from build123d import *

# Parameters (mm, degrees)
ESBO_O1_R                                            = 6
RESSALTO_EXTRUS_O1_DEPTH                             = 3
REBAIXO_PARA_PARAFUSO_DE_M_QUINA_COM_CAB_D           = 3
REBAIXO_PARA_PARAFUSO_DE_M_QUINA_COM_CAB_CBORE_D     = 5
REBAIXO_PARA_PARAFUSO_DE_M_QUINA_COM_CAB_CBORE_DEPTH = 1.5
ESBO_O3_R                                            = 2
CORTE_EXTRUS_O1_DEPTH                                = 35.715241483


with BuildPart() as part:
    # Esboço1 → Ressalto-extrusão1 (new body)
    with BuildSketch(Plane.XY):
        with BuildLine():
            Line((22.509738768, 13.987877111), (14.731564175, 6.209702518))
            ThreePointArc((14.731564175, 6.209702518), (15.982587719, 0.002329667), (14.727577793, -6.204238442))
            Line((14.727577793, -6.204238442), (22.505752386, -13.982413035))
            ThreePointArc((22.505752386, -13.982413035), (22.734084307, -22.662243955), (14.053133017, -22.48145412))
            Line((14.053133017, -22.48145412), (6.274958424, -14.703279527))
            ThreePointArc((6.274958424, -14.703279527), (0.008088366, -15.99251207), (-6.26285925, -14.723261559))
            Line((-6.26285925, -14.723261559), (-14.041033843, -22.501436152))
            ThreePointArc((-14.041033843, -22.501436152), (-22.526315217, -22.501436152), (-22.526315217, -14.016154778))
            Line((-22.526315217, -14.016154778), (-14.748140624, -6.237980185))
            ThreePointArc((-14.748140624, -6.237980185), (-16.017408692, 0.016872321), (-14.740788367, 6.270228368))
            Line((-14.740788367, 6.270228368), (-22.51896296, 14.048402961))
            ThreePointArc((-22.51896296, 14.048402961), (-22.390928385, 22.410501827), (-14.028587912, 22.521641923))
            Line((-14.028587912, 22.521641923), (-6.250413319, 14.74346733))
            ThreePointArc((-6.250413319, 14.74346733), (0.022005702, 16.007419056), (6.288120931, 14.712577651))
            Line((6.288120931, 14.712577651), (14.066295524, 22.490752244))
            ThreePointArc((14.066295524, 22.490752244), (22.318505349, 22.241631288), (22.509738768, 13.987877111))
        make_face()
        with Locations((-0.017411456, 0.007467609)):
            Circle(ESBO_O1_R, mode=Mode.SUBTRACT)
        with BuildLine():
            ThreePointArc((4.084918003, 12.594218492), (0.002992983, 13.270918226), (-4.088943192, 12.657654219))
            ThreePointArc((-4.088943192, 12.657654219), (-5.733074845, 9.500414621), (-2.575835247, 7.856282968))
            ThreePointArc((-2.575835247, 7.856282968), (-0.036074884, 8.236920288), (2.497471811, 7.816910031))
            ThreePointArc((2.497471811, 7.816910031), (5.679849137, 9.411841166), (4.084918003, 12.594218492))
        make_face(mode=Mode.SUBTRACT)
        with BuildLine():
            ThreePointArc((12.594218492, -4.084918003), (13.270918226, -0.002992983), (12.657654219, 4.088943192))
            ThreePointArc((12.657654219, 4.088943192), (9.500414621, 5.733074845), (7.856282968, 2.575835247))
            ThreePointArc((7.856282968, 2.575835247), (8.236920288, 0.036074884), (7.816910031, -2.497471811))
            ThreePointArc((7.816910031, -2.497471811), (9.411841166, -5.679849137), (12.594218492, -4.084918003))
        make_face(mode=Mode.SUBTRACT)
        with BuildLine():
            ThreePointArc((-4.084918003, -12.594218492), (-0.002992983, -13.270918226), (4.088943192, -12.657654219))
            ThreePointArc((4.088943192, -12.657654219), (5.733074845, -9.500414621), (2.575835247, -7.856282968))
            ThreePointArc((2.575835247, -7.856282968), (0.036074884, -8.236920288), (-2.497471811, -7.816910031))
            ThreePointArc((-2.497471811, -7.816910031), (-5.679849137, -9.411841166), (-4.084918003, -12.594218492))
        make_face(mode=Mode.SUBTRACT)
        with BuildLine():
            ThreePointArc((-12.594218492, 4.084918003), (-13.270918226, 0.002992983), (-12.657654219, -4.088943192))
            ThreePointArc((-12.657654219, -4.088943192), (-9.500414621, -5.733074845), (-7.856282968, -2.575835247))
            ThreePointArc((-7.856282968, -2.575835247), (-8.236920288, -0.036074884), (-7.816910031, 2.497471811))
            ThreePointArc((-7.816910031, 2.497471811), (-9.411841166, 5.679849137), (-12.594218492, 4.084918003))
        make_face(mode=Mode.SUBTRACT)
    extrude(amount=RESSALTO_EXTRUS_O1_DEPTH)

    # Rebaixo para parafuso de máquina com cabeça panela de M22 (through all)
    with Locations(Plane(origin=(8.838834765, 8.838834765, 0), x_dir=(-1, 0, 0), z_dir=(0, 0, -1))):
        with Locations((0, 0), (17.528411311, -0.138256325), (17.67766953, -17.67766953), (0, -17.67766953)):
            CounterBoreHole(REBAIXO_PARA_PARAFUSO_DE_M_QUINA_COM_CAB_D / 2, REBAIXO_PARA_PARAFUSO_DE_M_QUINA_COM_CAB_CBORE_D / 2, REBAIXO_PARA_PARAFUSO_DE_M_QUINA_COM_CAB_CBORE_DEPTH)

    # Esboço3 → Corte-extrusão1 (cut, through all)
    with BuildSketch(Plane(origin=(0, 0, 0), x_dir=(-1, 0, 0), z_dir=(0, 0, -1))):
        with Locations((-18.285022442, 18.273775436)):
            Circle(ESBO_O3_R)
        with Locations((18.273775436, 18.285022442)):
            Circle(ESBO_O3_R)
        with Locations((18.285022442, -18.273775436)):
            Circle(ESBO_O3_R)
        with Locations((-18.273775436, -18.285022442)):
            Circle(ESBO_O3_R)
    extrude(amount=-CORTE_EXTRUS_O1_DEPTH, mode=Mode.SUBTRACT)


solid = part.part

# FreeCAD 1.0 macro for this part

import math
import FreeCAD as App
import Part
import Sketcher

V = App.Vector
Q = App.Units.Quantity

doc = App.newDocument("Part")
body = doc.addObject("PartDesign::Body", "Body")

sketch1 = doc.addObject("Sketcher::SketchObject", "Sketch")
body.addObject(sketch1)
sketch1.AttachmentSupport = (doc.XY_Plane, [""])
sketch1.MapMode = "FlatFace"
sketch1.addGeometry([
    Part.LineSegment(V(14.7, 6.2, 0), V(22.5, 14, 0)),
    Part.ArcOfCircle(Part.Circle(V(18.1, 18, 0), V(0, 0, 1), 6), math.radians(-42), math.radians(132)),
    Part.LineSegment(V(14.1, 22.5, 0), V(6.3, 14.7, 0)),
    Part.ArcOfCircle(Part.Circle(V(0, 0, 0), V(0, 0, 1), 16), math.radians(67), math.radians(113)),
    Part.LineSegment(V(-6.3, 14.7, 0), V(-14, 22.5, 0)),
    Part.ArcOfCircle(Part.Circle(V(-18.2, 18.2, 0), V(0, 0, 1), 6), math.radians(47), math.radians(223)),
    Part.LineSegment(V(-22.5, 14, 0), V(-14.7, 6.3, 0)),
    Part.ArcOfCircle(Part.Circle(V(0, 0, 0), V(0, 0, 1), 16), math.radians(157), math.radians(203)),
    Part.LineSegment(V(-14.7, -6.2, 0), V(-22.5, -14, 0)),
    Part.ArcOfCircle(Part.Circle(V(-18.3, -18.3, 0), V(0, 0, 1), 6), math.radians(135), math.radians(315)),
    Part.LineSegment(V(-14, -22.5, 0), V(-6.3, -14.7, 0)),
    Part.ArcOfCircle(Part.Circle(V(0, 0, 0), V(0, 0, 1), 16), math.radians(-113), math.radians(-67)),
    Part.LineSegment(V(6.3, -14.7, 0), V(14.1, -22.5, 0)),
    Part.ArcOfCircle(Part.Circle(V(18.5, -18.4, 0), V(0, 0, 1), 6), math.radians(-138), math.radians(48)),
    Part.LineSegment(V(22.5, -14, 0), V(14.7, -6.2, 0)),
    Part.ArcOfCircle(Part.Circle(V(0, 0, 0), V(0, 0, 1), 16), math.radians(-23), math.radians(23)),
    Part.ArcOfCircle(Part.Circle(V(-3.3, -10.2, 0), V(0, 0, 1), 2.5), math.radians(72), math.radians(252)),
    Part.ArcOfCircle(Part.Circle(V(0.1, 0, 0), V(0, 0, 1), 8.2), math.radians(-108), math.radians(-73)),
    Part.ArcOfCircle(Part.Circle(V(3.3, -10.3, 0), V(0, 0, 1), 2.5), math.radians(-73), math.radians(107)),
    Part.ArcOfCircle(Part.Circle(V(0.1, 0, 0), V(0, 0, 1), 13.3), math.radians(-108), math.radians(-73)),
    Part.ArcOfCircle(Part.Circle(V(-10.2, 3.3, 0), V(0, 0, 1), 2.5), math.radians(-18), math.radians(162)),
    Part.ArcOfCircle(Part.Circle(V(0, -0.1, 0), V(0, 0, 1), 8.2), math.radians(162), math.radians(197)),
    Part.ArcOfCircle(Part.Circle(V(-10.3, -3.3, 0), V(0, 0, 1), 2.5), math.radians(-163), math.radians(17)),
    Part.ArcOfCircle(Part.Circle(V(0, -0.1, 0), V(0, 0, 1), 13.3), math.radians(162), math.radians(197)),
    Part.ArcOfCircle(Part.Circle(V(10.2, -3.3, 0), V(0, 0, 1), 2.5), math.radians(162), math.radians(342)),
    Part.ArcOfCircle(Part.Circle(V(0, 0.1, 0), V(0, 0, 1), 8.2), math.radians(-18), math.radians(17)),
    Part.ArcOfCircle(Part.Circle(V(10.3, 3.3, 0), V(0, 0, 1), 2.5), math.radians(17), math.radians(197)),
    Part.ArcOfCircle(Part.Circle(V(0, 0.1, 0), V(0, 0, 1), 13.3), math.radians(-18), math.radians(17)),
    Part.Circle(V(0, 0, 0), V(0, 0, 1), 6),
    Part.ArcOfCircle(Part.Circle(V(3.3, 10.2, 0), V(0, 0, 1), 2.5), math.radians(-108), math.radians(72)),
    Part.ArcOfCircle(Part.Circle(V(-0.1, 0, 0), V(0, 0, 1), 8.2), math.radians(72), math.radians(107)),
    Part.ArcOfCircle(Part.Circle(V(-3.3, 10.3, 0), V(0, 0, 1), 2.5), math.radians(107), math.radians(287)),
    Part.ArcOfCircle(Part.Circle(V(-0.1, 0, 0), V(0, 0, 1), 13.3), math.radians(72), math.radians(107)),
], False)
sketch1.addConstraint([
    Sketcher.Constraint("Coincident", 0, 2, 1, 1),
    Sketcher.Constraint("Coincident", 1, 2, 2, 1),
    Sketcher.Constraint("Coincident", 2, 2, 3, 1),
    Sketcher.Constraint("Coincident", 3, 2, 4, 1),
    Sketcher.Constraint("Coincident", 4, 2, 5, 1),
    Sketcher.Constraint("Coincident", 5, 2, 6, 1),
    Sketcher.Constraint("Coincident", 6, 2, 7, 1),
    Sketcher.Constraint("Coincident", 7, 2, 8, 1),
    Sketcher.Constraint("Tangent", 8, 2, 9, 1),
    Sketcher.Constraint("Tangent", 9, 2, 10, 1),
    Sketcher.Constraint("Coincident", 10, 2, 11, 1),
    Sketcher.Constraint("Coincident", 11, 2, 12, 1),
    Sketcher.Constraint("Coincident", 12, 2, 13, 1),
    Sketcher.Constraint("Coincident", 13, 2, 14, 1),
    Sketcher.Constraint("Coincident", 14, 2, 15, 1),
    Sketcher.Constraint("Coincident", 15, 2, 0, 1),
    Sketcher.Constraint("Tangent", 16, 1, 17, 1),
    Sketcher.Constraint("Tangent", 17, 2, 18, 2),
    Sketcher.Constraint("Tangent", 18, 1, 19, 2),
    Sketcher.Constraint("Tangent", 19, 1, 16, 2),
    Sketcher.Constraint("Tangent", 20, 1, 21, 1),
    Sketcher.Constraint("Tangent", 21, 2, 22, 2),
    Sketcher.Constraint("Tangent", 22, 1, 23, 2),
    Sketcher.Constraint("Tangent", 23, 1, 20, 2),
    Sketcher.Constraint("Tangent", 24, 1, 25, 1),
    Sketcher.Constraint("Tangent", 25, 2, 26, 2),
    Sketcher.Constraint("Tangent", 26, 1, 27, 2),
    Sketcher.Constraint("Tangent", 27, 1, 24, 2),
    Sketcher.Constraint("Tangent", 29, 1, 30, 1),
    Sketcher.Constraint("Tangent", 30, 2, 31, 2),
    Sketcher.Constraint("Tangent", 31, 1, 32, 2),
    Sketcher.Constraint("Tangent", 32, 1, 29, 2),
    Sketcher.Constraint("Coincident", 7, 3, 3, 3),
    Sketcher.Constraint("Coincident", 11, 3, 3, 3),
    Sketcher.Constraint("Coincident", 15, 3, 3, 3),
    Sketcher.Constraint("Coincident", 19, 3, 17, 3),
    Sketcher.Constraint("Coincident", 23, 3, 21, 3),
    Sketcher.Constraint("Coincident", 27, 3, 25, 3),
    Sketcher.Constraint("Coincident", 28, 3, 3, 3),
    Sketcher.Constraint("Coincident", 32, 3, 30, 3),
    Sketcher.Constraint("Equal", 1, 5),
    Sketcher.Constraint("Equal", 3, 7),
    Sketcher.Constraint("Equal", 5, 9),
    Sketcher.Constraint("Equal", 7, 11),
    Sketcher.Constraint("Equal", 9, 13),
    Sketcher.Constraint("Equal", 11, 15),
    Sketcher.Constraint("Equal", 18, 20),
    Sketcher.Constraint("Equal", 17, 21),
    Sketcher.Constraint("Equal", 22, 24),
    Sketcher.Constraint("Equal", 21, 25),
    Sketcher.Constraint("Equal", 13, 28),
    Sketcher.Constraint("Equal", 26, 29),
    Sketcher.Constraint("Equal", 25, 30),
    Sketcher.Constraint("Symmetric", 20, 3, 24, 3, -1, 1),
    Sketcher.Constraint("Symmetric", 22, 3, 26, 3, -1, 1),
    Sketcher.Constraint("Symmetric", 16, 3, 29, 3, -1, 1),
    Sketcher.Constraint("Symmetric", 18, 3, 31, 3, -1, 1),
    Sketcher.Constraint("PointOnObject", 17, 3, -1),
    Sketcher.Constraint("PointOnObject", 21, 3, -2),
    Sketcher.Constraint("Parallel", 0, 2),
    Sketcher.Constraint("Perpendicular", 2, 4),
    Sketcher.Constraint("Parallel", 4, 6),
    Sketcher.Constraint("Perpendicular", 6, 8),
    Sketcher.Constraint("Parallel", 8, 10),
    Sketcher.Constraint("Perpendicular", 10, 12),
    Sketcher.Constraint("Parallel", 12, 14),
    Sketcher.Constraint("Equal", 0, 2),
    Sketcher.Constraint("Equal", 2, 4),
    Sketcher.Constraint("Equal", 4, 6),
    Sketcher.Constraint("Equal", 6, 8),
    Sketcher.Constraint("Equal", 8, 10),
    Sketcher.Constraint("Equal", 10, 12),
    Sketcher.Constraint("Equal", 12, 14),
    Sketcher.Constraint("Diameter", 28, Q("12 mm")),
    Sketcher.Constraint("Radius", 3, Q("16 mm")),
    Sketcher.Constraint("Angle", 0, Q("45 deg")),
    Sketcher.Constraint("Distance", 0, Q("11 mm")),
    Sketcher.Constraint("DistanceX", -1, 1, 17, 3, Q("0.1 mm")),
    Sketcher.Constraint("DistanceY", 21, 3, -1, 1, Q("0.1 mm")),
    Sketcher.Constraint("Radius", 17, Q("8.237168 mm")),
    Sketcher.Constraint("Radius", 16, Q("2.517075 mm")),
    Sketcher.Constraint("DistanceX", 24, 3, 15, 2, Q("4.526 mm")),
    Sketcher.Constraint("DistanceX", 9, 3, 5, 3, Q("0.131099 mm")),
    Sketcher.Constraint("DistanceX", 3, 3, 18, 3, Q("3.349801 mm")),
    Sketcher.Constraint("DistanceX", 29, 3, 1, 2, Q("10.775101 mm")),
    Sketcher.Constraint("DistanceY", 31, 3, 3, 2, Q("4.486499 mm")),
    Sketcher.Constraint("DistanceX", 4, 2, 31, 3, Q("10.696199 mm")),
    Sketcher.Constraint("DistanceX", 5, 2, 20, 3, Q("12.313399 mm")),
    Sketcher.Constraint("DistanceX", 6, 2, 31, 3, Q("11.408399 mm")),
    Sketcher.Constraint("DistanceX", -1, 1, 1, 3, Q("18.061012 mm")),
    Sketcher.Constraint("DistanceX", -1, 1, 13, 3, Q("18.479841 mm")),
    Sketcher.Constraint("DistanceX", 22, 3, -1, 1, Q("10.256969 mm")),
    Sketcher.Constraint("DistanceX", -1, 1, 11, 2, Q("6.274958 mm")),
])
pad1 = doc.addObject("PartDesign::Pad", "Pad")
body.addObject(pad1)
pad1.Profile = sketch1
pad1.Length = 3

sketch2 = doc.addObject("Sketcher::SketchObject", "Sketch001")
body.addObject(sketch2)
sketch2.AttachmentSupport = (doc.XY_Plane, [""])
sketch2.MapMode = "FlatFace"
sketch2.addGeometry([
    Part.Circle(V(8.8, 8.8, 0), V(0, 0, 1), 1.5),
    Part.Circle(V(-8.7, 8.7, 0), V(0, 0, 1), 1.5),
    Part.Circle(V(-8.8, -8.8, 0), V(0, 0, 1), 1.5),
    Part.Circle(V(8.8, -8.8, 0), V(0, 0, 1), 1.5),
], False)
sketch2.addConstraint([
    Sketcher.Constraint("Equal", 0, 1),
    Sketcher.Constraint("Equal", 1, 2),
    Sketcher.Constraint("Equal", 2, 3),
    Sketcher.Constraint("Symmetric", 0, 3, 2, 3, -1, 1),
    Sketcher.Constraint("Symmetric", 2, 3, 3, 3, -2),
    Sketcher.Constraint("Diameter", 0, Q("3 mm")),
    Sketcher.Constraint("DistanceY", -1, 1, 1, 3, Q("8.700578 mm")),
    Sketcher.Constraint("DistanceX", 1, 3, 0, 3, Q("17.528411 mm")),
    Sketcher.Constraint("DistanceX", 2, 3, 1, 3, Q("0.149258 mm")),
    Sketcher.Constraint("DistanceY", 2, 3, 0, 3, Q("17.67767 mm")),
])
doc.recompute()
hole = doc.addObject("PartDesign::Hole", "Hole")
body.addObject(hole)
hole.Profile = sketch2
hole.ThreadType = "None"
hole.Diameter = 3
hole.DepthType = "ThroughAll"
hole.HoleCutType = "Counterbore"
hole.HoleCutDiameter = 5
hole.HoleCutDepth = 1.5
hole.Reversed = True

sketch3 = doc.addObject("Sketcher::SketchObject", "Sketch002")
body.addObject(sketch3)
sketch3.AttachmentSupport = (doc.XY_Plane, [""])
sketch3.MapMode = "FlatFace"
sketch3.addGeometry([
    Part.Circle(V(18.3, 18.3, 0), V(0, 0, 1), 2),
    Part.Circle(V(-18.3, 18.3, 0), V(0, 0, 1), 2),
    Part.Circle(V(-18.3, -18.3, 0), V(0, 0, 1), 2),
    Part.Circle(V(18.3, -18.3, 0), V(0, 0, 1), 2),
], False)
sketch3.addConstraint([
    Sketcher.Constraint("Equal", 0, 1),
    Sketcher.Constraint("Equal", 1, 2),
    Sketcher.Constraint("Equal", 2, 3),
    Sketcher.Constraint("Symmetric", 0, 3, 2, 3, -1, 1),
    Sketcher.Constraint("Symmetric", 1, 3, 3, 3, -1, 1),
    Sketcher.Constraint("Diameter", 0, Q("4 mm")),
    Sketcher.Constraint("DistanceY", 2, 3, 0, 3, Q("36.547551 mm")),
    Sketcher.Constraint("DistanceX", 1, 3, 3, 3, Q("36.547551 mm")),
    Sketcher.Constraint("DistanceX", -1, 1, 0, 3, Q("18.285022 mm")),
    Sketcher.Constraint("DistanceY", -1, 1, 1, 3, Q("18.285022 mm")),
])
pocket1 = doc.addObject("PartDesign::Pocket", "Pocket")
body.addObject(pocket1)
pocket1.Profile = sketch3
pocket1.Type = "ThroughAll"
pocket1.Reversed = True

doc.recompute()
